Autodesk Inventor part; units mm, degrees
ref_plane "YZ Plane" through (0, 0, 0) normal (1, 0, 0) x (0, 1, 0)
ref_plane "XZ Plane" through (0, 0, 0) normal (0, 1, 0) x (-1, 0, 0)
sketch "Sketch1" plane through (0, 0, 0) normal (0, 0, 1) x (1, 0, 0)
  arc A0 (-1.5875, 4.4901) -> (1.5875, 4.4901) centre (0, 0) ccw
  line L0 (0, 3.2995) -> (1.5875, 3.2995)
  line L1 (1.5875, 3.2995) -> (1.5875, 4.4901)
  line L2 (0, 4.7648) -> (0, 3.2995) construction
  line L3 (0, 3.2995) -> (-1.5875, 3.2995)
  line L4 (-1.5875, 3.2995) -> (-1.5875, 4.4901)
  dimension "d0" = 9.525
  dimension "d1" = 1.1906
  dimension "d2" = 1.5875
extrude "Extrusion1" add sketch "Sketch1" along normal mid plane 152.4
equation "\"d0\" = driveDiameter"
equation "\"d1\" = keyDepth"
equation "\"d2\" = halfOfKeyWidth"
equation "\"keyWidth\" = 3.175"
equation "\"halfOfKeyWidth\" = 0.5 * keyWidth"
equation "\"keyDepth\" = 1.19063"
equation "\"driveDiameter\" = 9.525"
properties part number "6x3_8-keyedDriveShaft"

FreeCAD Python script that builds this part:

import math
import FreeCAD as App
import Part
import Sketcher
Q = App.Units.Quantity

doc = App.newDocument("Part")
params = doc.addObject("Spreadsheet::Sheet", "Params")
for row, (alias, value) in enumerate([
    ("sketch1_radius", "0.1875 in"),
    ("sketch1_height", "0.046874 in"),
    ("pad1_length", "6 in"),
], start=1):
    params.set(f"A{row}", alias)
    params.set(f"B{row}", "=" + value)
    params.setAlias(f"B{row}", alias)

body = doc.addObject("PartDesign::Body", "Body")

# Sketch on XY plane
sketch1 = body.newObject("Sketcher::SketchObject", "Sketch")
sketch1.AttachmentSupport = (doc.getObject("XY_Plane"), [""])
sketch1.MapMode = "FlatFace"
sketch1.addGeometry([
    Part.LineSegment(App.Vector(-1.6, 3.3, 0), App.Vector(-1.6, 4.5, 0)),
    Part.ArcOfCircle(Part.Circle(App.Vector(0, 0, 0), App.Vector(0, 0, 1), 4.8), math.radians(109), math.radians(431)),
    Part.LineSegment(App.Vector(1.6, 4.5, 0), App.Vector(1.6, 3.3, 0)),
    Part.LineSegment(App.Vector(1.6, 3.3, 0), App.Vector(-1.6, 3.3, 0)),
], False)
sketch1.addConstraint([
    Sketcher.Constraint("Coincident", 0, 2, 1, 1),
    Sketcher.Constraint("Coincident", 1, 2, 2, 1),
    Sketcher.Constraint("Coincident", 2, 2, 3, 1),
    Sketcher.Constraint("Coincident", 3, 2, 0, 1),
    Sketcher.Constraint("Vertical", 0),
    Sketcher.Constraint("Vertical", 2),
    Sketcher.Constraint("Horizontal", 3),
    Sketcher.Constraint("Coincident", 1, 3, -1, 1),
    Sketcher.Constraint("Horizontal", 0, 2, 1, 2),
    Sketcher.Constraint("Radius", 1, Q("0.1875 in")),
    Sketcher.Constraint("DistanceY", 0, 1, 0, 2, Q("0.046874 in")),
    Sketcher.Constraint("DistanceX", 0, 2, -1, 1, Q("0.0625 in")),
])
sketch1.setExpression("Constraints[9]", "Params.sketch1_radius")
sketch1.setExpression("Constraints[10]", "Params.sketch1_height")
pad1 = body.newObject("PartDesign::Pad", "Pad")
pad1.Profile = sketch1
pad1.setExpression("Length", "Params.pad1_length")
pad1.Midplane = True

doc.recompute()
